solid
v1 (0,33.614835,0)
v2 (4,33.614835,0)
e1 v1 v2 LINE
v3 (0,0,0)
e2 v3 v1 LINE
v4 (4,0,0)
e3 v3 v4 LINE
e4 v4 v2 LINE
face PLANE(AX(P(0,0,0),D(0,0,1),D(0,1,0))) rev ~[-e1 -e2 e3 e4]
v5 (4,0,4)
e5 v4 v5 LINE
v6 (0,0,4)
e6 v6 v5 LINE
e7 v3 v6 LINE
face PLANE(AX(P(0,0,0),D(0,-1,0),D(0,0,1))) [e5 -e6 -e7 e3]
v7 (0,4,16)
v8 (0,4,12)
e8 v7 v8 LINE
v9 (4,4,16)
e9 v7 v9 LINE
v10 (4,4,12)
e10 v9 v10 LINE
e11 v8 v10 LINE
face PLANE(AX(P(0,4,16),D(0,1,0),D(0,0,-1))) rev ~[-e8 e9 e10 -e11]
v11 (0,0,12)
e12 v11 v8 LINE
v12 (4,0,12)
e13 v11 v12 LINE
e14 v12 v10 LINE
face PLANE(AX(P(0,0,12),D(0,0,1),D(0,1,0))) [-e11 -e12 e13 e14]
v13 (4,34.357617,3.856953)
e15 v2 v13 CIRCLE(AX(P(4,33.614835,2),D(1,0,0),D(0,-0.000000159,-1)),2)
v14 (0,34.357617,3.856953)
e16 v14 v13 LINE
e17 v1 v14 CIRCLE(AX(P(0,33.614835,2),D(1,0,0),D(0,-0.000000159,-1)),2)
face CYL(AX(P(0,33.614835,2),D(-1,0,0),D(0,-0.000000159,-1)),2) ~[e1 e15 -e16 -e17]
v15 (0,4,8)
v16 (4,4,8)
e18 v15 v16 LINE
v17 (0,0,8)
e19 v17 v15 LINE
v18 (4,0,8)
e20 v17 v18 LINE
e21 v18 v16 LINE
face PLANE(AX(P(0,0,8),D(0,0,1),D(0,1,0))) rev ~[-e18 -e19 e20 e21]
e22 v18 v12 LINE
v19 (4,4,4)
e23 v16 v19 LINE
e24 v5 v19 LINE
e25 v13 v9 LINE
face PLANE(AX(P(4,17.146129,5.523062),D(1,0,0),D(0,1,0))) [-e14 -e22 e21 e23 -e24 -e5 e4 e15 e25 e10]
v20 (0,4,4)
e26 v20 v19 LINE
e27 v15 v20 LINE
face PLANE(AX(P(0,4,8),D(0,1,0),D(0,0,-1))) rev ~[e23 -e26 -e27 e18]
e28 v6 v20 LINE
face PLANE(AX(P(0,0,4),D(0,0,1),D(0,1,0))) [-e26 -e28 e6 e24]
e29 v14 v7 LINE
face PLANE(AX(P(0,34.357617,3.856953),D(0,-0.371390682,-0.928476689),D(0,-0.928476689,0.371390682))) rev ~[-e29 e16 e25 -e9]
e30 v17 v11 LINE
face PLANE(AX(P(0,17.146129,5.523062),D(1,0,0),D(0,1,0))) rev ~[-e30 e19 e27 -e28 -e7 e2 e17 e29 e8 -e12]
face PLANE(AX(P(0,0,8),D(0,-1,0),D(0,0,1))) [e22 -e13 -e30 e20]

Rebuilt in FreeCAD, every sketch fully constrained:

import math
import FreeCAD as App
import Part
import Sketcher

doc = App.newDocument("Part")
body = doc.addObject("PartDesign::Body", "Body")

sketch1 = body.newObject("Sketcher::SketchObject", "Sketch")
sketch1.AttachmentSupport = (doc.getObject("YZ_Plane"), [""])
sketch1.MapMode = "FlatFace"
sketch1.addGeometry([
    Part.ArcOfCircle(Part.Circle(App.Vector(33.6, 2, 0), App.Vector(0, 0, 1), 2), math.radians(-90), math.radians(68)),
    Part.LineSegment(App.Vector(34.4, 3.9, 0), App.Vector(4, 16, 0)),
    Part.LineSegment(App.Vector(4, 16, 0), App.Vector(4, 12, 0)),
    Part.LineSegment(App.Vector(4, 12, 0), App.Vector(0, 12, 0)),
    Part.LineSegment(App.Vector(0, 12, 0), App.Vector(0, 8, 0)),
    Part.LineSegment(App.Vector(0, 8, 0), App.Vector(4, 8, 0)),
    Part.LineSegment(App.Vector(4, 8, 0), App.Vector(4, 4, 0)),
    Part.LineSegment(App.Vector(4, 4, 0), App.Vector(0, 4, 0)),
    Part.LineSegment(App.Vector(0, 4, 0), App.Vector(0, 0, 0)),
    Part.LineSegment(App.Vector(0, 0, 0), App.Vector(33.6, 0, 0)),
], False)
sketch1.addConstraint([
    Sketcher.Constraint("Tangent", 0, 2, 1, 1),
    Sketcher.Constraint("Coincident", 1, 2, 2, 1),
    Sketcher.Constraint("Coincident", 2, 2, 3, 1),
    Sketcher.Constraint("Coincident", 3, 2, 4, 1),
    Sketcher.Constraint("Coincident", 4, 2, 5, 1),
    Sketcher.Constraint("Coincident", 5, 2, 6, 1),
    Sketcher.Constraint("Coincident", 6, 2, 7, 1),
    Sketcher.Constraint("Coincident", 7, 2, 8, 1),
    Sketcher.Constraint("Coincident", 8, 2, 9, 1),
    Sketcher.Constraint("Tangent", 9, 2, 0, 1),
    Sketcher.Constraint("Vertical", 2),
    Sketcher.Constraint("Horizontal", 3),
    Sketcher.Constraint("Vertical", 4),
    Sketcher.Constraint("Horizontal", 5),
    Sketcher.Constraint("Vertical", 6),
    Sketcher.Constraint("Horizontal", 7),
    Sketcher.Constraint("Vertical", 8),
    Sketcher.Constraint("Horizontal", 9),
    Sketcher.Constraint("Coincident", 8, 2, -1, 1),
    Sketcher.Constraint("PointOnObject", 3, 2, -2),
    Sketcher.Constraint("Vertical", 2, 2, 5, 2),
    Sketcher.Constraint("Equal", 7, 2),
    Sketcher.Constraint("Equal", 2, 4),
    Sketcher.Constraint("Equal", 4, 6),
    Sketcher.Constraint("Equal", 6, 8),
    Sketcher.Constraint("Radius", 0, 2.0),
    Sketcher.Constraint("DistanceX", 3, 2, 3, 1, 4.0),
    Sketcher.Constraint("DistanceX", 9, 1, 9, 2, 33.614835),
])
pad1 = body.newObject("PartDesign::Pad", "Pad")
pad1.Profile = sketch1
pad1.Length = 4

doc.recompute()
